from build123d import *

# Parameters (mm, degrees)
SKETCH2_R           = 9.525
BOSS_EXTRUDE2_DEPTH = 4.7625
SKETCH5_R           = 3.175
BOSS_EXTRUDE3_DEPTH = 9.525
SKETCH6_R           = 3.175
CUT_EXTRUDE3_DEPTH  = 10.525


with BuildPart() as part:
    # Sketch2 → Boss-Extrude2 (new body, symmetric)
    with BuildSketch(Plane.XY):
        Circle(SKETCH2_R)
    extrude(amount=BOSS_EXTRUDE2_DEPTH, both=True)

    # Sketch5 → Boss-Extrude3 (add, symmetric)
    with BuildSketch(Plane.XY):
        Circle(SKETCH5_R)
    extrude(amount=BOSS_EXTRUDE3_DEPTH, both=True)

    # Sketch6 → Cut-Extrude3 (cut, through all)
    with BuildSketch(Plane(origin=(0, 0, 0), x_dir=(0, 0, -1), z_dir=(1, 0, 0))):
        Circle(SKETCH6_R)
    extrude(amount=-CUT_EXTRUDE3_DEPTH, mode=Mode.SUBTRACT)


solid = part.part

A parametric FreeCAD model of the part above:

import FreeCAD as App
import Part
import Sketcher
Q = App.Units.Quantity

doc = App.newDocument("Part")
body = doc.addObject("PartDesign::Body", "Body")

sketch1 = doc.addObject("Sketcher::SketchObject", "Sketch")
body.addObject(sketch1)
sketch1.AttachmentSupport = (doc.XY_Plane, [""])
sketch1.MapMode = "FlatFace"
sketch1.addGeometry(Part.Circle(App.Vector(0, 0, 0), App.Vector(0, 0, 1), 10), False)
sketch1.addConstraint(Sketcher.Constraint("Coincident", 0, 3, -1, 1))
sketch1.addConstraint(Sketcher.Constraint("Diameter", 0, Q("0.75 in")))
pad1 = doc.addObject("PartDesign::Pad", "Pad")
body.addObject(pad1)
pad1.Profile = sketch1
pad1.Length = Q("0.375 in")
pad1.Midplane = True

sketch2 = doc.addObject("Sketcher::SketchObject", "Sketch001")
body.addObject(sketch2)
sketch2.AttachmentSupport = (doc.XY_Plane, [""])
sketch2.MapMode = "FlatFace"
sketch2.addGeometry(Part.Circle(App.Vector(0, 0, 0), App.Vector(0, 0, 1), 3.2), False)
sketch2.addConstraint(Sketcher.Constraint("Coincident", 0, 3, -1, 1))
sketch2.addConstraint(Sketcher.Constraint("Diameter", 0, Q("0.25 in")))
pad2 = doc.addObject("PartDesign::Pad", "Pad001")
body.addObject(pad2)
pad2.Profile = sketch2
pad2.Length = Q("0.75 in")
pad2.Midplane = True

sketch3 = doc.addObject("Sketcher::SketchObject", "Sketch002")
body.addObject(sketch3)
sketch3.AttachmentSupport = (doc.YZ_Plane, [""])
sketch3.MapMode = "FlatFace"
sketch3.addGeometry(Part.Circle(App.Vector(0, 0, 0), App.Vector(0, 0, 1), 3.2), False)
sketch3.addConstraint(Sketcher.Constraint("Coincident", 0, 3, -1, 1))
sketch3.addConstraint(Sketcher.Constraint("Diameter", 0, Q("0.25 in")))
pocket1 = doc.addObject("PartDesign::Pocket", "Pocket")
body.addObject(pocket1)
pocket1.Profile = sketch3
pocket1.Type = "ThroughAll"

doc.recompute()
